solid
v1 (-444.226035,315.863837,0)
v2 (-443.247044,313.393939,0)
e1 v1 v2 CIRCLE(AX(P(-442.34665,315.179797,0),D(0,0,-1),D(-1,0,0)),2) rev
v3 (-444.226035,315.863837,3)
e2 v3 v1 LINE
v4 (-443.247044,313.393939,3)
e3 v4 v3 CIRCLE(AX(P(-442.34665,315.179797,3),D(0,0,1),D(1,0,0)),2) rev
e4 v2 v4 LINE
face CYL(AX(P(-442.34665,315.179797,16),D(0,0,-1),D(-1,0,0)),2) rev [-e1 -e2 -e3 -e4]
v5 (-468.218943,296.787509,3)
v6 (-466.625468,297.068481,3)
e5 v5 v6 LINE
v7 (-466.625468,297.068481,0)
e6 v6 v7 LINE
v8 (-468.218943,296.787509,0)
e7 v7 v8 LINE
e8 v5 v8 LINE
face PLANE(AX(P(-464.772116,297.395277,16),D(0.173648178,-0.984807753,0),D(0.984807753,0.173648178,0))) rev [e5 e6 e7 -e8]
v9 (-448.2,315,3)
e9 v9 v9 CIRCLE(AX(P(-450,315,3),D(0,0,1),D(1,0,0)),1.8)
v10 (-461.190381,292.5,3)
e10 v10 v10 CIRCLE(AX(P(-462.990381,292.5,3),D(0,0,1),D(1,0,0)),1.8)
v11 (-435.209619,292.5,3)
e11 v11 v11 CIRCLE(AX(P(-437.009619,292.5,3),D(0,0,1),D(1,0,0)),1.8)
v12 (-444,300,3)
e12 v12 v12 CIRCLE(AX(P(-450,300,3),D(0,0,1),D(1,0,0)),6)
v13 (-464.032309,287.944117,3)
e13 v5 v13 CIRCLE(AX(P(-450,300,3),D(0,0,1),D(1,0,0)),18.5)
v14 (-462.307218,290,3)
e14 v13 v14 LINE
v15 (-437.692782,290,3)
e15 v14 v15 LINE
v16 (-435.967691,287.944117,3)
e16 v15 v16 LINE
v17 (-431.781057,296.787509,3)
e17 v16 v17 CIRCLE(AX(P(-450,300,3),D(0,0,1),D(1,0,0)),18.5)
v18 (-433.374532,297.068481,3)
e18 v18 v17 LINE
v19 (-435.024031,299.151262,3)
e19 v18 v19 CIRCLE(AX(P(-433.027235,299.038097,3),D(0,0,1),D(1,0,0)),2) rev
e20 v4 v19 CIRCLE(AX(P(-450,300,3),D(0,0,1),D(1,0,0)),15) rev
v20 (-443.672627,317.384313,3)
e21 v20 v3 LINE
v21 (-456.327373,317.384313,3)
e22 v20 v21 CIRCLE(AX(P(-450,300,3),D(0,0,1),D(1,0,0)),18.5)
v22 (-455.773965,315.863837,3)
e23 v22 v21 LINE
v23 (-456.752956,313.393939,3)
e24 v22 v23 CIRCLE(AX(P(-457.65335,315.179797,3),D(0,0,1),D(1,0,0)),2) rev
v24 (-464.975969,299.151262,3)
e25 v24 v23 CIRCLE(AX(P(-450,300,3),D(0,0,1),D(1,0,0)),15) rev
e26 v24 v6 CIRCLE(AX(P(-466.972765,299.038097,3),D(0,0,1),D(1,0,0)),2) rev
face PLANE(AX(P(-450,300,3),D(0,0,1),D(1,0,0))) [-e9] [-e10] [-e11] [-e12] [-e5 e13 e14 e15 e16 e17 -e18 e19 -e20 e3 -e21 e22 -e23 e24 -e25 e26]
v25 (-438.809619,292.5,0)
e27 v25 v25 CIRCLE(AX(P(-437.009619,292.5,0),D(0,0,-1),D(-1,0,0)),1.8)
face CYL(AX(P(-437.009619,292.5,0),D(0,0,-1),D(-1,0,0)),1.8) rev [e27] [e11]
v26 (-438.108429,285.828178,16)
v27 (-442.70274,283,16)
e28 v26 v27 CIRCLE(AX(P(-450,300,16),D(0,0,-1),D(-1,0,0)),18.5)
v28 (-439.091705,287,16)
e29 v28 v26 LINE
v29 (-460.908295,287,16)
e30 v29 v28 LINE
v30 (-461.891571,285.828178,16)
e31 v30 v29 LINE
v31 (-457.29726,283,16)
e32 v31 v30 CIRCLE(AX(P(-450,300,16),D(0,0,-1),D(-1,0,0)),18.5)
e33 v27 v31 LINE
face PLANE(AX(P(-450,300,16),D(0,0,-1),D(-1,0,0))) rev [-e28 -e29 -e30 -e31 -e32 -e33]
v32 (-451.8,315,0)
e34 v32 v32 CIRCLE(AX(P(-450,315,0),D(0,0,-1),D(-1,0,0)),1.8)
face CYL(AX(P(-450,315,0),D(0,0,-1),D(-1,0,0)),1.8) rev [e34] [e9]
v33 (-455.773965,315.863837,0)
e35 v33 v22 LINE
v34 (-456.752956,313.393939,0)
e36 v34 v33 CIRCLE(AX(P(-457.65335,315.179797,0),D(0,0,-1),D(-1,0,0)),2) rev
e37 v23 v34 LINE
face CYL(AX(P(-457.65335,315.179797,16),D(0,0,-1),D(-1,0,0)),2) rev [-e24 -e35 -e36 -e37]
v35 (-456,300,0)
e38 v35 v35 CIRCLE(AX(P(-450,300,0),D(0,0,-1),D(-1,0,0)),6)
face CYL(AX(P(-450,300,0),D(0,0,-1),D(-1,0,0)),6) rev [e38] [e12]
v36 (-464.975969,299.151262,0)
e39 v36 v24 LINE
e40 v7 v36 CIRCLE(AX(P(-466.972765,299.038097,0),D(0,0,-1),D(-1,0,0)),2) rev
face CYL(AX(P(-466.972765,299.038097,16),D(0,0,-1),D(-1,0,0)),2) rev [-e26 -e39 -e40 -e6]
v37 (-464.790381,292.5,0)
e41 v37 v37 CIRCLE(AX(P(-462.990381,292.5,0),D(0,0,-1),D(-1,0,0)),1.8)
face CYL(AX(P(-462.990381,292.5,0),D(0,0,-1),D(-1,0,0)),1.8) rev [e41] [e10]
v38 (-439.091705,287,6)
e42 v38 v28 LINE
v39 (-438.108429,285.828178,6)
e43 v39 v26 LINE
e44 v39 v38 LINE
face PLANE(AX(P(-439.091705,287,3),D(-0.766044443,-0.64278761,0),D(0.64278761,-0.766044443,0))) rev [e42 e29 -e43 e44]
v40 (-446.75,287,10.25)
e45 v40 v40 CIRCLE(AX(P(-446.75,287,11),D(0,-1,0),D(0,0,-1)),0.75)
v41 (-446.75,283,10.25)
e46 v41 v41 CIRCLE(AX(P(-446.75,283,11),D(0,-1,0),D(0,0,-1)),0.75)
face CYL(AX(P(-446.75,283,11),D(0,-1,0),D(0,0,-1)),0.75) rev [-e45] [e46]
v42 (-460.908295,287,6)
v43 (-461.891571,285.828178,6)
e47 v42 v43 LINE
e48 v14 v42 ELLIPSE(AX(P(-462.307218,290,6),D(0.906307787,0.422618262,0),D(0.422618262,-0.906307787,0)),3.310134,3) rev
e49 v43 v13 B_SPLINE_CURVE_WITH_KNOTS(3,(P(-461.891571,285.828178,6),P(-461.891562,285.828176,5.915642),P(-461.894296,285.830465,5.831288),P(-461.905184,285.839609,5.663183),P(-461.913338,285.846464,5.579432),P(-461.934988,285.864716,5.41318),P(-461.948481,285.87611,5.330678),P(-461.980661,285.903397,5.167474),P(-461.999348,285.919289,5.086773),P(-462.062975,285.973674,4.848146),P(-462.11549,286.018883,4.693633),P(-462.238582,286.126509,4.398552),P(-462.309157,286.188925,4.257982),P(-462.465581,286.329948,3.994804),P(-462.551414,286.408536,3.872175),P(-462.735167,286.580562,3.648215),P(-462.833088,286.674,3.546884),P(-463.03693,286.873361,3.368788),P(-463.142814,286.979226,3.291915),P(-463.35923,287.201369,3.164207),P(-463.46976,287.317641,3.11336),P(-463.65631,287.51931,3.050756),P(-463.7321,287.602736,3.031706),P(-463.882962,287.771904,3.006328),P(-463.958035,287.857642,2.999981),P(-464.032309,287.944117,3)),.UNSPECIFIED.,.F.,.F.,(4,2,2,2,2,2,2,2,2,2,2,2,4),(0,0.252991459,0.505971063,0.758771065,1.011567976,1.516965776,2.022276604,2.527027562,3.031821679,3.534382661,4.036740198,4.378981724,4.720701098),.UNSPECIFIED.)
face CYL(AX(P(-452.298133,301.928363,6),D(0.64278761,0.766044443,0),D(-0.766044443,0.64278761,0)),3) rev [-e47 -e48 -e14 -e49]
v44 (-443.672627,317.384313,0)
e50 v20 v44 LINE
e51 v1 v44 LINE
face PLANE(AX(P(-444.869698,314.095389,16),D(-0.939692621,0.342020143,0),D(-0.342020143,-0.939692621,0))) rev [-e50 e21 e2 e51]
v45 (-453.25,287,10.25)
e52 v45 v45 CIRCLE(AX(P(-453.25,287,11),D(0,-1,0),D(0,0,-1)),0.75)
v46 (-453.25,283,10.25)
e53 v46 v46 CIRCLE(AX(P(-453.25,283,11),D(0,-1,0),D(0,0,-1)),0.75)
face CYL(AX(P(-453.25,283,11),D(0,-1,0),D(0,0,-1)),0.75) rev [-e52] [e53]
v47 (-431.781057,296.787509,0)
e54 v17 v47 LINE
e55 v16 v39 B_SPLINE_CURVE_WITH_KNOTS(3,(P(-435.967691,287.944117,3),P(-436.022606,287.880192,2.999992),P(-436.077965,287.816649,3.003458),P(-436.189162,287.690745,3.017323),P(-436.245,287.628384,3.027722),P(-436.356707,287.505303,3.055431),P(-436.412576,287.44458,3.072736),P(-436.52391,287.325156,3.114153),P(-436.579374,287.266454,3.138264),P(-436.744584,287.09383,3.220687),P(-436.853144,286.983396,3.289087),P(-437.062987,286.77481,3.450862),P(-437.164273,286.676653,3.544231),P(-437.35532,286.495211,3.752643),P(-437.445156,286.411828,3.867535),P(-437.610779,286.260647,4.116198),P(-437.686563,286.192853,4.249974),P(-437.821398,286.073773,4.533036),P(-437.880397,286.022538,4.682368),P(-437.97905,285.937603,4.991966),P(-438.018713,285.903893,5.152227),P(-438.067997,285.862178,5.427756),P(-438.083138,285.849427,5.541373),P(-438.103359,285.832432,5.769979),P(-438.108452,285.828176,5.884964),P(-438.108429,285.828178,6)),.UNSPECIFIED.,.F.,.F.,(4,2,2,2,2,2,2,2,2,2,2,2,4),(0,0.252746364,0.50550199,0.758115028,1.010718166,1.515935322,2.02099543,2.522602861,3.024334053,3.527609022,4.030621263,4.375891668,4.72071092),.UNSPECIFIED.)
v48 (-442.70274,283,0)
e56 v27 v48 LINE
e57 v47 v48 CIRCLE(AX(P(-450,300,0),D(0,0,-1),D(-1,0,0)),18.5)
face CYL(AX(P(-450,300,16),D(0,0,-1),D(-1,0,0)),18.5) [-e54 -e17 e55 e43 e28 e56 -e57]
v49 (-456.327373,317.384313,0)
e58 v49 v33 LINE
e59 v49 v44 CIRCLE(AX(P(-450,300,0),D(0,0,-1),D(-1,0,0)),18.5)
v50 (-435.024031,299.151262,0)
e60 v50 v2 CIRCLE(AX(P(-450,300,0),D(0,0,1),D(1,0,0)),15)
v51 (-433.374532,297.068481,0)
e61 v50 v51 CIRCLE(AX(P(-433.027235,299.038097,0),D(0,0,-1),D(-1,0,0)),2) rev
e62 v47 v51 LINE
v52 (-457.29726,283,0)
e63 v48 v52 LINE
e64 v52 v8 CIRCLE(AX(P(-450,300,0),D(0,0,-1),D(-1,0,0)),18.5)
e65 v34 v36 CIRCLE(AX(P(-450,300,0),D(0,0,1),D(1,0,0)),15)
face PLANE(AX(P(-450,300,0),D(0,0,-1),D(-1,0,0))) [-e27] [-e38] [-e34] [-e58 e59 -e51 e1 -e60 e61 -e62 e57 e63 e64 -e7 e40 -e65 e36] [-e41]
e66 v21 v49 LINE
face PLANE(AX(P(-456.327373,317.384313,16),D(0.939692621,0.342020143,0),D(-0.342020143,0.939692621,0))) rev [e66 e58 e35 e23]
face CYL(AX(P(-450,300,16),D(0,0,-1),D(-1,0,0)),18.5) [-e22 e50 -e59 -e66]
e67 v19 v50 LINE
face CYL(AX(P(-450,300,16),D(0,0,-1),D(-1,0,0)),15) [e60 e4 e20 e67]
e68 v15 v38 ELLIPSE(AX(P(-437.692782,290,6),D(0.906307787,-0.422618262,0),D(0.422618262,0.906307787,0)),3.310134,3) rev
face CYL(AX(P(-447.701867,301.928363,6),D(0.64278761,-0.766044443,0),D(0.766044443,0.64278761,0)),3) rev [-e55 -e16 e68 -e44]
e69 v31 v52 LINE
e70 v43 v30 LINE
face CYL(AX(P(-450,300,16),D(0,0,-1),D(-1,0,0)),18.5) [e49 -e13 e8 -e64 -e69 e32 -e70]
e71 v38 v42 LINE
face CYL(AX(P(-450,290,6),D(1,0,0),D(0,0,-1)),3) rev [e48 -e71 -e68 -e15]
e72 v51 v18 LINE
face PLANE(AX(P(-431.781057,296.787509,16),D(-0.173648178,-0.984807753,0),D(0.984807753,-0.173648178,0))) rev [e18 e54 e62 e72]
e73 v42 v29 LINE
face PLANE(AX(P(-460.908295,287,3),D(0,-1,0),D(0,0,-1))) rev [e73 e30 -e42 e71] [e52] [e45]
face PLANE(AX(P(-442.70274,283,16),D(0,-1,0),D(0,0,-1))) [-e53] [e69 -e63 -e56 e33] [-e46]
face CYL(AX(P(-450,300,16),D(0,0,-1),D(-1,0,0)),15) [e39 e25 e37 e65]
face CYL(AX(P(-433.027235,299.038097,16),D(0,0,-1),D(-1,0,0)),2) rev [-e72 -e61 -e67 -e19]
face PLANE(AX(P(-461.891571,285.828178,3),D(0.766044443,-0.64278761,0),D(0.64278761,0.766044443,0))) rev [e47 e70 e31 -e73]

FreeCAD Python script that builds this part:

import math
import FreeCAD as App
import Part
import Sketcher
from FreeCAD import Vector
Q = App.Units.Quantity


def edges_at(feature, points):
    """Names of the edges that pass closest to the given points."""
    edges = feature.Shape.Edges
    near = lambda p: min(range(len(edges)), key=lambda i: edges[i].distToShape(Part.Vertex(*p))[0])
    return sorted({f"Edge{near(p) + 1}" for p in points})

doc = App.newDocument("Part")
body = doc.addObject("PartDesign::Body", "Body")

# Sketch on XY plane
sketch1 = doc.addObject("Sketcher::SketchObject", "Sketch")
body.addObject(sketch1)
sketch1.AttachmentSupport = (doc.XY_Plane, [""])
sketch1.MapMode = "FlatFace"
sketch1.addGeometry(Part.LineSegment(Vector(-443, 283, 0), Vector(-457, 283, 0)), False)
sketch1.addGeometry(Part.ArcOfCircle(Part.Circle(Vector(-450, 300, 0), Vector(0, 0, 1), 18), math.radians(-67), math.radians(247)), False)
sketch1.addConstraint(Sketcher.Constraint("Coincident", 0, 1, 1, 1))
sketch1.addConstraint(Sketcher.Constraint("Coincident", 1, 2, 0, 2))
sketch1.addConstraint(Sketcher.Constraint("Horizontal", 0))
sketch1.addConstraint(Sketcher.Constraint("Radius", 1, 18.5))
sketch1.addConstraint(Sketcher.Constraint("DistanceX", 1, 3, -1, 1, 450.0))
sketch1.addConstraint(Sketcher.Constraint("DistanceY", -1, 1, 1, 3, 300.0))
sketch1.addConstraint(Sketcher.Constraint("DistanceY", -1, 1, 0, 1, 283.0))
pad1 = doc.addObject("PartDesign::Pad", "Pad")
body.addObject(pad1)
pad1.Profile = sketch1
pad1.Length = 16

# Sketch on XY plane
sketch2 = doc.addObject("Sketcher::SketchObject", "Sketch001")
body.addObject(sketch2)
sketch2.AttachmentSupport = (doc.XY_Plane, [""])
sketch2.MapMode = "FlatFace"
sketch2.AttachmentOffset = App.Placement(Vector(0, 0, 16), App.Rotation())
sketch2.addGeometry(Part.LineSegment(Vector(-461.9, 285.8, 0), Vector(-460.9, 287, 0)), False)
sketch2.addGeometry(Part.LineSegment(Vector(-460.9, 287, 0), Vector(-439.1, 287, 0)), False)
sketch2.addGeometry(Part.LineSegment(Vector(-439.1, 287, 0), Vector(-438.1, 285.8, 0)), False)
sketch2.addGeometry(Part.ArcOfCircle(Part.Circle(Vector(-450, 300, 0), Vector(0, 0, 1), 18.5), math.radians(-50), math.radians(230)), False)
sketch2.addConstraint(Sketcher.Constraint("Coincident", 0, 2, 1, 1))
sketch2.addConstraint(Sketcher.Constraint("Coincident", 1, 2, 2, 1))
sketch2.addConstraint(Sketcher.Constraint("Coincident", 2, 2, 3, 1))
sketch2.addConstraint(Sketcher.Constraint("Coincident", 3, 2, 0, 1))
sketch2.addConstraint(Sketcher.Constraint("Horizontal", 1))
sketch2.addConstraint(Sketcher.Constraint("Horizontal", 2, 2, 3, 2))
sketch2.addConstraint(Sketcher.Constraint("Equal", 0, 2))
sketch2.addConstraint(Sketcher.Constraint("Radius", 3, 18.5))
sketch2.addConstraint(Sketcher.Constraint("Angle", 0, Q("50 deg")))
sketch2.addConstraint(Sketcher.Constraint("DistanceX", 3, 3, -1, 1, 450.0))
sketch2.addConstraint(Sketcher.Constraint("DistanceY", -1, 1, 3, 3, 300.0))
sketch2.addConstraint(Sketcher.Constraint("DistanceY", -1, 1, 0, 2, 287.0))
sketch2.addConstraint(Sketcher.Constraint("DistanceX", 1, 1, 1, 2, 21.81659))
pocket1 = doc.addObject("PartDesign::Pocket", "Pocket")
body.addObject(pocket1)
pocket1.Profile = sketch2
pocket1.Length = 13

# Sketch on XY plane
sketch3 = doc.addObject("Sketcher::SketchObject", "Sketch002")
body.addObject(sketch3)
sketch3.AttachmentSupport = (doc.XY_Plane, [""])
sketch3.MapMode = "FlatFace"
sketch3.addGeometry(Part.LineSegment(Vector(-431.8, 296.8, 0), Vector(-435.2, 297.4, 0)), False)
sketch3.addGeometry(Part.ArcOfCircle(Part.Circle(Vector(-450, 300, 0), Vector(0, 0, 1), 15), math.radians(-10), math.radians(70)), False)
sketch3.addGeometry(Part.LineSegment(Vector(-444.9, 314.1, 0), Vector(-443.7, 317.4, 0)), False)
sketch3.addGeometry(Part.ArcOfCircle(Part.Circle(Vector(-450, 300, 0), Vector(0, 0, 1), 18.5), math.radians(-10), math.radians(70)), False)
sketch3.addConstraint(Sketcher.Constraint("Coincident", 0, 2, 1, 1))
sketch3.addConstraint(Sketcher.Constraint("Coincident", 1, 2, 2, 1))
sketch3.addConstraint(Sketcher.Constraint("Coincident", 2, 2, 3, 2))
sketch3.addConstraint(Sketcher.Constraint("Coincident", 3, 1, 0, 1))
sketch3.addConstraint(Sketcher.Constraint("Coincident", 3, 3, 1, 3))
sketch3.addConstraint(Sketcher.Constraint("Radius", 1, 15.0))
sketch3.addConstraint(Sketcher.Constraint("Radius", 3, 18.5))
sketch3.addConstraint(Sketcher.Constraint("Angle", 0, Q("170 deg")))
sketch3.addConstraint(Sketcher.Constraint("Angle", 2, Q("70 deg")))
sketch3.addConstraint(Sketcher.Constraint("DistanceX", 1, 3, -1, 1, 450.0))
sketch3.addConstraint(Sketcher.Constraint("DistanceY", -1, 1, 1, 3, 300.0))
sketch3.addConstraint(Sketcher.Constraint("DistanceY", -1, 1, 1, 2, 314.095389))
sketch3.addConstraint(Sketcher.Constraint("DistanceY", -1, 1, 3, 1, 296.787509))
pocket2 = doc.addObject("PartDesign::Pocket", "Pocket001")
body.addObject(pocket2)
pocket2.Profile = sketch3
pocket2.Type = "ThroughAll"
pocket2.Reversed = True

# Sketch on XY plane
sketch4 = doc.addObject("Sketcher::SketchObject", "Sketch003")
body.addObject(sketch4)
sketch4.AttachmentSupport = (doc.XY_Plane, [""])
sketch4.MapMode = "FlatFace"
sketch4.addGeometry(Part.LineSegment(Vector(-456.3, 317.4, 0), Vector(-455.1, 314.1, 0)), False)
sketch4.addGeometry(Part.ArcOfCircle(Part.Circle(Vector(-450, 300, 0), Vector(0, 0, 1), 15), math.radians(110), math.radians(190)), False)
sketch4.addGeometry(Part.LineSegment(Vector(-464.8, 297.4, 0), Vector(-468.2, 296.8, 0)), False)
sketch4.addGeometry(Part.ArcOfCircle(Part.Circle(Vector(-450, 300, 0), Vector(0, 0, 1), 18.5), math.radians(110), math.radians(190)), False)
sketch4.addConstraint(Sketcher.Constraint("Coincident", 0, 2, 1, 1))
sketch4.addConstraint(Sketcher.Constraint("Coincident", 1, 2, 2, 1))
sketch4.addConstraint(Sketcher.Constraint("Coincident", 2, 2, 3, 2))
sketch4.addConstraint(Sketcher.Constraint("Coincident", 3, 1, 0, 1))
sketch4.addConstraint(Sketcher.Constraint("Coincident", 3, 3, 1, 3))
sketch4.addConstraint(Sketcher.Constraint("Radius", 1, 15.0))
sketch4.addConstraint(Sketcher.Constraint("Radius", 3, 18.5))
sketch4.addConstraint(Sketcher.Constraint("Angle", 0, Q("-70 deg")))
sketch4.addConstraint(Sketcher.Constraint("Angle", 2, Q("-170 deg")))
sketch4.addConstraint(Sketcher.Constraint("DistanceX", 1, 3, -1, 1, 450.0))
sketch4.addConstraint(Sketcher.Constraint("DistanceY", -1, 1, 1, 3, 300.0))
sketch4.addConstraint(Sketcher.Constraint("DistanceY", -1, 1, 0, 2, 314.095389))
sketch4.addConstraint(Sketcher.Constraint("DistanceY", -1, 1, 2, 2, 296.787509))
pocket3 = doc.addObject("PartDesign::Pocket", "Pocket002")
body.addObject(pocket3)
pocket3.Profile = sketch4
pocket3.Type = "ThroughAll"
pocket3.Reversed = True

# Sketch on XZ plane
sketch5 = doc.addObject("Sketcher::SketchObject", "Sketch004")
body.addObject(sketch5)
sketch5.AttachmentSupport = (doc.XZ_Plane, [""])
sketch5.MapMode = "FlatFace"
sketch5.AttachmentOffset = App.Placement(Vector(0, 0, -283), App.Rotation())
sketch5.addGeometry(Part.Circle(Vector(-446.8, 11, 0), Vector(0, 0, 1), 0.8), False)
sketch5.addGeometry(Part.Circle(Vector(-453.2, 11, 0), Vector(0, 0, 1), 0.8), False)
sketch5.addConstraint(Sketcher.Constraint("Equal", 0, 1))
sketch5.addConstraint(Sketcher.Constraint("Horizontal", 0, 3, 1, 3))
sketch5.addConstraint(Sketcher.Constraint("Diameter", 0, 1.5))
sketch5.addConstraint(Sketcher.Constraint("DistanceY", -1, 1, 0, 3, 11.0))
sketch5.addConstraint(Sketcher.Constraint("DistanceX", 1, 3, 0, 3, 6.5))
sketch5.addConstraint(Sketcher.Constraint("DistanceX", 0, 3, -1, 1, 446.75))
doc.recompute()
hole = doc.addObject("PartDesign::Hole", "Hole")
body.addObject(hole)
hole.Profile = sketch5
hole.ThreadType = "None"
hole.Diameter = 1.5
hole.DepthType = "Dimension"
hole.Depth = 35.5
hole.DrillPoint = "Flat"

# Sketch on XY plane
sketch6 = doc.addObject("Sketcher::SketchObject", "Sketch005")
body.addObject(sketch6)
sketch6.AttachmentSupport = (doc.XY_Plane, [""])
sketch6.MapMode = "FlatFace"
sketch6.addGeometry(Part.Circle(Vector(-450, 300, 0), Vector(0, 0, 1), 6), False)
sketch6.addConstraint(Sketcher.Constraint("Diameter", 0, 12.0))
sketch6.addConstraint(Sketcher.Constraint("DistanceX", 0, 3, -1, 1, 450.0))
sketch6.addConstraint(Sketcher.Constraint("DistanceY", -1, 1, 0, 3, 300.0))
doc.recompute()
hole2 = doc.addObject("PartDesign::Hole", "Hole001")
body.addObject(hole2)
hole2.Profile = sketch6
hole2.ThreadType = "None"
hole2.Diameter = 12
hole2.DepthType = "Dimension"
hole2.Depth = 16
hole2.DrillPoint = "Flat"
hole2.Reversed = True

# Sketch on XY plane
sketch7 = doc.addObject("Sketcher::SketchObject", "Sketch006")
body.addObject(sketch7)
sketch7.AttachmentSupport = (doc.XY_Plane, [""])
sketch7.MapMode = "FlatFace"
sketch7.addGeometry(Part.Circle(Vector(-437, 292.5, 0), Vector(0, 0, 1), 1.8), False)
sketch7.addGeometry(Part.Circle(Vector(-450, 315, 0), Vector(0, 0, 1), 1.8), False)
sketch7.addGeometry(Part.Circle(Vector(-463, 292.5, 0), Vector(0, 0, 1), 1.8), False)
sketch7.addConstraint(Sketcher.Constraint("Equal", 0, 1))
sketch7.addConstraint(Sketcher.Constraint("Equal", 1, 2))
sketch7.addConstraint(Sketcher.Constraint("Horizontal", 0, 3, 2, 3))
sketch7.addConstraint(Sketcher.Constraint("Diameter", 0, 3.6))
sketch7.addConstraint(Sketcher.Constraint("DistanceX", 1, 3, -1, 1, 450.0))
sketch7.addConstraint(Sketcher.Constraint("DistanceY", -1, 1, 1, 3, 315.0))
sketch7.addConstraint(Sketcher.Constraint("DistanceY", -1, 1, 0, 3, 292.5))
sketch7.addConstraint(Sketcher.Constraint("DistanceX", 0, 3, -1, 1, 437.009619))
sketch7.addConstraint(Sketcher.Constraint("DistanceX", 2, 3, -1, 1, 462.990381))
doc.recompute()
hole3 = doc.addObject("PartDesign::Hole", "Hole002")
body.addObject(hole3)
hole3.Profile = sketch7
hole3.ThreadType = "None"
hole3.Diameter = 3.6
hole3.DepthType = "Dimension"
hole3.Depth = 16
hole3.DrillPoint = "Flat"
hole3.Reversed = True
doc.recompute()

fillet = doc.addObject("PartDesign::Fillet", "Fillet")
body.addObject(fillet)
fillet.Base = (hole3, edges_at(hole3, [
    (-444.87, 314.095, 1.5),
    (-435.228, 297.395, 1.5),
    (-464.772, 297.395, 1.5),
    (-455.13, 314.095, 1.5),
]))
fillet.Radius = 2
doc.recompute()

fillet2 = doc.addObject("PartDesign::Fillet", "Fillet001")
body.addObject(fillet2)
fillet2.Base = (fillet, edges_at(fillet, [(-438.6, 286.414, 3), (-450, 287, 3), (-461.4, 286.414, 3)]))
fillet2.Radius = 3

doc.recompute()
